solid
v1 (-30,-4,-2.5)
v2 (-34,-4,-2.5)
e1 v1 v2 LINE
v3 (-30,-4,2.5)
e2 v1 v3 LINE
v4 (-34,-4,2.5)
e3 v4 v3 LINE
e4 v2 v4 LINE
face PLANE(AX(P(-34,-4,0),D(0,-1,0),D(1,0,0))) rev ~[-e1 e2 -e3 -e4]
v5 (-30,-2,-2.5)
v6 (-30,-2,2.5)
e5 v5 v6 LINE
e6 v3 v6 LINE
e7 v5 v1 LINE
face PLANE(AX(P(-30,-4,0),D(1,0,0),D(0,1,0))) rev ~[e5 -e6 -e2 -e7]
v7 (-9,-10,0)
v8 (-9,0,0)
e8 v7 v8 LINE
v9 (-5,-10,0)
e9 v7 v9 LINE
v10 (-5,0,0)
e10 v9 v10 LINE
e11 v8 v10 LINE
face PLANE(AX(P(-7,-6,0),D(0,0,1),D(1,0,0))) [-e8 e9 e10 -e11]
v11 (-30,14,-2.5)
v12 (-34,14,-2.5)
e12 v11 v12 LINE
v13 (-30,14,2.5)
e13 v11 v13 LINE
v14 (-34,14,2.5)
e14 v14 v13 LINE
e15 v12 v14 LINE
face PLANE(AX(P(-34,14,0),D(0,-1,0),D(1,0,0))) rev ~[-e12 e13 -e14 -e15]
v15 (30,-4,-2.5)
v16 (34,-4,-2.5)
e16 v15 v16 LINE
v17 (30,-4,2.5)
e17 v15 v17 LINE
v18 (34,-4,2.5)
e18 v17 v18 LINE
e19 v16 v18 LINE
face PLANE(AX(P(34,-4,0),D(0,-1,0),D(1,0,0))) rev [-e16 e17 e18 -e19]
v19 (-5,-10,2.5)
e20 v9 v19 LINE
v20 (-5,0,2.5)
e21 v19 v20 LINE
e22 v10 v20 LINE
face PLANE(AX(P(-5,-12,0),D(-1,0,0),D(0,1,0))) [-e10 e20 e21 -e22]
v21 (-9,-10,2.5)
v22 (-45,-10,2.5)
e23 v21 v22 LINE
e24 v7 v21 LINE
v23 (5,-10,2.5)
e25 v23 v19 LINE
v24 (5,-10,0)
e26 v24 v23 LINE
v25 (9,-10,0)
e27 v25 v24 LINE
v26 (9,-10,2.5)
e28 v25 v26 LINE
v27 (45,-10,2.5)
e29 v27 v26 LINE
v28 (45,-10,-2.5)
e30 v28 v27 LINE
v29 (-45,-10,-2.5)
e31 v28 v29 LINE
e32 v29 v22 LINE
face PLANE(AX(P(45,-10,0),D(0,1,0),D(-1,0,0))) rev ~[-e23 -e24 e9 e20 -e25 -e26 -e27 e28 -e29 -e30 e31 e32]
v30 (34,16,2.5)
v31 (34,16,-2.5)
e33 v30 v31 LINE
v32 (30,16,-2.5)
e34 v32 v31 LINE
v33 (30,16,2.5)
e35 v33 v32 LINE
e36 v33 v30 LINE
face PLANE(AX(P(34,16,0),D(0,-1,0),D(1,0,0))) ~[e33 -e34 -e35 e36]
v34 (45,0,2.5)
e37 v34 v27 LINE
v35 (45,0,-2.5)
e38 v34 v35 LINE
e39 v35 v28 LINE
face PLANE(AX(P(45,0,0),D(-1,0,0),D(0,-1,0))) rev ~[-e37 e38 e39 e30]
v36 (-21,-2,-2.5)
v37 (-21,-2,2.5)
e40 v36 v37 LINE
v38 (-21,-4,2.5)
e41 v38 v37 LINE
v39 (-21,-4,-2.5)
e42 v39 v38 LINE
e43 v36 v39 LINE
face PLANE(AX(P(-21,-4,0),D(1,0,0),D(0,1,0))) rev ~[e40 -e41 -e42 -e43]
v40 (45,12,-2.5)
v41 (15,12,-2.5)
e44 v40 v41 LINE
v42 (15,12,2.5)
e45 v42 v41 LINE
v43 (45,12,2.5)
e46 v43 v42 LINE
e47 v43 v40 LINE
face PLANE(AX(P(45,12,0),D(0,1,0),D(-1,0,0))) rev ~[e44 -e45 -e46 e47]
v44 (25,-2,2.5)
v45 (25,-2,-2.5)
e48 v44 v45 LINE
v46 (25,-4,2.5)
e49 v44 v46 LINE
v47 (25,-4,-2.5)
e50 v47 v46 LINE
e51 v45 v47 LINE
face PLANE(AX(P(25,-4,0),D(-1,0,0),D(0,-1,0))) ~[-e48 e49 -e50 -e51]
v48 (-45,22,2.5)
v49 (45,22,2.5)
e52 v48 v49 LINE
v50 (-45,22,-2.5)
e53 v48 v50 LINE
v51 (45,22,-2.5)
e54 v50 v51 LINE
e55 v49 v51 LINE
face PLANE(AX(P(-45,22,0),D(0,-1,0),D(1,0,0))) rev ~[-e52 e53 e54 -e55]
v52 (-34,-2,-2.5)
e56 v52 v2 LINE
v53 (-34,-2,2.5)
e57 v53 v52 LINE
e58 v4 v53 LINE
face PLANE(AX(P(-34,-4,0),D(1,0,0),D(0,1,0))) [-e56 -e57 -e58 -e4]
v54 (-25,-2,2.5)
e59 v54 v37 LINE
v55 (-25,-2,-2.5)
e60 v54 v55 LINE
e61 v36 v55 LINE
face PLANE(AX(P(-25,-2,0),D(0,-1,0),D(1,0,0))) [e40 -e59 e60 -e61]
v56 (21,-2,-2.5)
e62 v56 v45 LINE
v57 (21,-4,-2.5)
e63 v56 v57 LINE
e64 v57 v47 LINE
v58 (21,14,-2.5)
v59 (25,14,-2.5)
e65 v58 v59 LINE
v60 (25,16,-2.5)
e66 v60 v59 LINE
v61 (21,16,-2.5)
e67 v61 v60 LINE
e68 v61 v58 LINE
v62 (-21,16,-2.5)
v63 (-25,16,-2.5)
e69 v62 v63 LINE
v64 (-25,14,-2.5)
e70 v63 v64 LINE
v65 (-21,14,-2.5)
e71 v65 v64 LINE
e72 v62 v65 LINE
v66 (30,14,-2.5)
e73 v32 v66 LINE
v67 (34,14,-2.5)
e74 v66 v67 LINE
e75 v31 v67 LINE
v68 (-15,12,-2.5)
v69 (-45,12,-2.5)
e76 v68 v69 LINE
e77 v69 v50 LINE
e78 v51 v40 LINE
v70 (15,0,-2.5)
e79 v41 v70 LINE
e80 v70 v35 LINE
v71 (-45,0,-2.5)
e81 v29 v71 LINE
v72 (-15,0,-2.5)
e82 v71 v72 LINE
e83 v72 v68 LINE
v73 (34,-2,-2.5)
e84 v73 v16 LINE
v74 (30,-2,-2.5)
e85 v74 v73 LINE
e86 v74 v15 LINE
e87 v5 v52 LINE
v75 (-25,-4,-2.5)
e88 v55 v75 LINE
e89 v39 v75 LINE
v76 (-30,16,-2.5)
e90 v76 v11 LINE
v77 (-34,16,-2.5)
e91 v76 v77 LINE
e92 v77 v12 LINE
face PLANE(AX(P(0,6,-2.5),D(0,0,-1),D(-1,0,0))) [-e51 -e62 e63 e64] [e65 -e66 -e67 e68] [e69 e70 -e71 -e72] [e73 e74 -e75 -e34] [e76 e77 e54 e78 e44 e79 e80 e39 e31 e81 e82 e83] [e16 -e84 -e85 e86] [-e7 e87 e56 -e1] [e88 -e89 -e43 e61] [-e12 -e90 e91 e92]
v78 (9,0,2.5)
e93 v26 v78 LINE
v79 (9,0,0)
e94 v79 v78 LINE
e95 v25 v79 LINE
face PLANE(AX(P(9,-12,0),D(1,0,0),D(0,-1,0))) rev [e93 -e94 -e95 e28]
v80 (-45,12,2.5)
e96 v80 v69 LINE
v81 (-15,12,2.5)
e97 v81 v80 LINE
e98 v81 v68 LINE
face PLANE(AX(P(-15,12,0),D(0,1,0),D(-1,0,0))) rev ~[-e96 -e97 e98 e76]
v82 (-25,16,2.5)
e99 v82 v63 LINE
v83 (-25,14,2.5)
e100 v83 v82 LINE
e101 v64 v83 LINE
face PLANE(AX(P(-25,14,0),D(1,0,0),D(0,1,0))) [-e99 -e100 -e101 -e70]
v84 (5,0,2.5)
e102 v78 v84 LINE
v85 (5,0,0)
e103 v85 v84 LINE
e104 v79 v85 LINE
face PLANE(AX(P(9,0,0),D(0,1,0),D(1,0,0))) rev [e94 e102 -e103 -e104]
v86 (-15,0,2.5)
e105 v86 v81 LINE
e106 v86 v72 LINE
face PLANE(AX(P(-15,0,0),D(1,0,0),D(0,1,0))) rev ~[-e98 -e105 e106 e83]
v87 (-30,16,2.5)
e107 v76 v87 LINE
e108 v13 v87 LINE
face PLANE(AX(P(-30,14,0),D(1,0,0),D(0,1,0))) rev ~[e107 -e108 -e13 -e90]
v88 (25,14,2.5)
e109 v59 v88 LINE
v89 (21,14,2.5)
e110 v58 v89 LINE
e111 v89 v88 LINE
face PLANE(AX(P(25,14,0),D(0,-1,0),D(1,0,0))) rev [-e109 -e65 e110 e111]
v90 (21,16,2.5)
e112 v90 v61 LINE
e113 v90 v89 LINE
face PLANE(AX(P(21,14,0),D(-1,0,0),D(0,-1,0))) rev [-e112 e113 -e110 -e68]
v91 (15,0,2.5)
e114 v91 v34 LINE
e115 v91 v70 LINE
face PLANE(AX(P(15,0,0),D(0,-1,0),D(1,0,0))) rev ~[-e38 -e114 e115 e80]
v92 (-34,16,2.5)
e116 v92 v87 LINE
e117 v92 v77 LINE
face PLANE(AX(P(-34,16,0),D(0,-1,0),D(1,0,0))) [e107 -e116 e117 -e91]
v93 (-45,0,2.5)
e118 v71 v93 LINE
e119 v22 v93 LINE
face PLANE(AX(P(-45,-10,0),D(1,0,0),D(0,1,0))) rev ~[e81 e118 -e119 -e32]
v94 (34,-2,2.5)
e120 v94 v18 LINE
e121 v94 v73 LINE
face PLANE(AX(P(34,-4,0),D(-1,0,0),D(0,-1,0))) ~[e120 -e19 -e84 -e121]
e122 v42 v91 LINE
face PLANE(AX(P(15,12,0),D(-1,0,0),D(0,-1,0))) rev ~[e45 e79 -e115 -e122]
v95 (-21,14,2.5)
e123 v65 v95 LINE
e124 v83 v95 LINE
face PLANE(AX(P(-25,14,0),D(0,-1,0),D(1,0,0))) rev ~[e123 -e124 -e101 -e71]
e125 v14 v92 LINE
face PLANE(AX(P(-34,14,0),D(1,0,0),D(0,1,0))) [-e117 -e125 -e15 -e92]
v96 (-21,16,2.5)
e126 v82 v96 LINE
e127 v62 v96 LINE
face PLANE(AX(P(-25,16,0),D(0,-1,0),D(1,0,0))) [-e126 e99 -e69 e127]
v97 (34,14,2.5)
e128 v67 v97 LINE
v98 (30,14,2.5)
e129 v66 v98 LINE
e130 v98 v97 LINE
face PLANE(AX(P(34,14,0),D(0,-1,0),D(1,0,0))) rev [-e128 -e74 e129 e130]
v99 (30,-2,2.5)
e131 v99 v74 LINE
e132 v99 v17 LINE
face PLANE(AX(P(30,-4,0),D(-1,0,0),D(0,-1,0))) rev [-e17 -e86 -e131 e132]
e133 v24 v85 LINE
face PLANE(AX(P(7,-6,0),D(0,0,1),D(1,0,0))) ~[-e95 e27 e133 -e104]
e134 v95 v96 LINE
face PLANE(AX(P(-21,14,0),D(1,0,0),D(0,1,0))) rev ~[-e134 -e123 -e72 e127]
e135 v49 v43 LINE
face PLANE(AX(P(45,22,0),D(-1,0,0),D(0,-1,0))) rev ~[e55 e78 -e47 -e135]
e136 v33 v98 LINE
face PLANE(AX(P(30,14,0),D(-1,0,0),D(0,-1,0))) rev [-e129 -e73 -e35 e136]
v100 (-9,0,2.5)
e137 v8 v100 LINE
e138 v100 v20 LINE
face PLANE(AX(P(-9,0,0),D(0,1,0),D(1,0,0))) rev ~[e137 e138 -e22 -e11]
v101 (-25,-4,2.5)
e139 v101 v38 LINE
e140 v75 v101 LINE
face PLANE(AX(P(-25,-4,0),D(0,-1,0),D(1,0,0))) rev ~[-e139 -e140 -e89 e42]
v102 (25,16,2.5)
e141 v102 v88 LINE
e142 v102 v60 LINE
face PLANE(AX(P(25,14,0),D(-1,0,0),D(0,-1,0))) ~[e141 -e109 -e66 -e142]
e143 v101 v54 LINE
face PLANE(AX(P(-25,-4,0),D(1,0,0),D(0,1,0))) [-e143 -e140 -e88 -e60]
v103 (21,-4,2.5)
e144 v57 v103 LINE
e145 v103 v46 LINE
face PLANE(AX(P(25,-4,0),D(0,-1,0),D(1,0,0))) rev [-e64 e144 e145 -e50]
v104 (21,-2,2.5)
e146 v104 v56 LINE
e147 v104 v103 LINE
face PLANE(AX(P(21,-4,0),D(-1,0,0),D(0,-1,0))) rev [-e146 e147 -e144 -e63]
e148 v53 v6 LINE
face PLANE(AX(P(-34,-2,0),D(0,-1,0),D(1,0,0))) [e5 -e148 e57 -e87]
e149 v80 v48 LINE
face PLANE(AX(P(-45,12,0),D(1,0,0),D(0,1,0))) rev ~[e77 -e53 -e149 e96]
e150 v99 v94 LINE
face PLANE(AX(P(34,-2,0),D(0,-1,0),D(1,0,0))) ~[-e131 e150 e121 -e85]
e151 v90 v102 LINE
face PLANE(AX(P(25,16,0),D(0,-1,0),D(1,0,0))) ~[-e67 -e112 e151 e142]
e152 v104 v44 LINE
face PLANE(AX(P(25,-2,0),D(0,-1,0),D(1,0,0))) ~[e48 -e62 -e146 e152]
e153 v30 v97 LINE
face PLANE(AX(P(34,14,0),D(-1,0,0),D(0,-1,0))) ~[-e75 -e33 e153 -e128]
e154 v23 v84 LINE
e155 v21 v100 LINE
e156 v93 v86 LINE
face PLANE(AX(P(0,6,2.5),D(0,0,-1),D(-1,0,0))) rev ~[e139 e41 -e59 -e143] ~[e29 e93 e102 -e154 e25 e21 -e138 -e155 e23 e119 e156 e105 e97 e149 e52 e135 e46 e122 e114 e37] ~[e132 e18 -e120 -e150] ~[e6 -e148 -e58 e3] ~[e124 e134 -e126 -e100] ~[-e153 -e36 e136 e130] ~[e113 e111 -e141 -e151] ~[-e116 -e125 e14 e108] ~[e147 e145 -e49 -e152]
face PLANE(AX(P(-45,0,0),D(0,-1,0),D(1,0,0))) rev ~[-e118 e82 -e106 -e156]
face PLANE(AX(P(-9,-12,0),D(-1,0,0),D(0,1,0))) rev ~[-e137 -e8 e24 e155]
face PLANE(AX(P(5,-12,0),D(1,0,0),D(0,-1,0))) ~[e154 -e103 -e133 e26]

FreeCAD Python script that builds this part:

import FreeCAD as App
import Part
import Sketcher
from FreeCAD import Vector

doc = App.newDocument("Part")
body = doc.addObject("PartDesign::Body", "Body")

sketch1 = doc.addObject("Sketcher::SketchObject", "Sketch")
body.addObject(sketch1)
sketch1.AttachmentSupport = (doc.XY_Plane, [""])
sketch1.MapMode = "FlatFace"
sketch1.addGeometry([
    Part.LineSegment(Vector(-15, 0, 0), Vector(-45, 0, 0)),
    Part.LineSegment(Vector(-45, 0, 0), Vector(-45, -10, 0)),
    Part.LineSegment(Vector(-45, -10, 0), Vector(45, -10, 0)),
    Part.LineSegment(Vector(45, -10, 0), Vector(45, 0, 0)),
    Part.LineSegment(Vector(45, 0, 0), Vector(15, 0, 0)),
    Part.LineSegment(Vector(15, 0, 0), Vector(15, 12, 0)),
    Part.LineSegment(Vector(15, 12, 0), Vector(45, 12, 0)),
    Part.LineSegment(Vector(45, 12, 0), Vector(45, 22, 0)),
    Part.LineSegment(Vector(45, 22, 0), Vector(-45, 22, 0)),
    Part.LineSegment(Vector(-45, 22, 0), Vector(-45, 12, 0)),
    Part.LineSegment(Vector(-45, 12, 0), Vector(-15, 12, 0)),
    Part.LineSegment(Vector(-15, 12, 0), Vector(-15, 0, 0)),
], False)
sketch1.addConstraint([
    Sketcher.Constraint("Coincident", 0, 2, 1, 1),
    Sketcher.Constraint("Coincident", 1, 2, 2, 1),
    Sketcher.Constraint("Coincident", 2, 2, 3, 1),
    Sketcher.Constraint("Coincident", 3, 2, 4, 1),
    Sketcher.Constraint("Coincident", 4, 2, 5, 1),
    Sketcher.Constraint("Coincident", 5, 2, 6, 1),
    Sketcher.Constraint("Coincident", 6, 2, 7, 1),
    Sketcher.Constraint("Coincident", 7, 2, 8, 1),
    Sketcher.Constraint("Coincident", 8, 2, 9, 1),
    Sketcher.Constraint("Coincident", 9, 2, 10, 1),
    Sketcher.Constraint("Coincident", 10, 2, 11, 1),
    Sketcher.Constraint("Coincident", 11, 2, 0, 1),
    Sketcher.Constraint("Horizontal", 0),
    Sketcher.Constraint("Vertical", 1),
    Sketcher.Constraint("Horizontal", 2),
    Sketcher.Constraint("Vertical", 3),
    Sketcher.Constraint("Horizontal", 4),
    Sketcher.Constraint("Vertical", 5),
    Sketcher.Constraint("Horizontal", 6),
    Sketcher.Constraint("Vertical", 7),
    Sketcher.Constraint("Horizontal", 8),
    Sketcher.Constraint("Vertical", 9),
    Sketcher.Constraint("Horizontal", 10),
    Sketcher.Constraint("Vertical", 11),
    Sketcher.Constraint("Symmetric", 0, 2, 3, 2, -1, 1),
    Sketcher.Constraint("Symmetric", 6, 2, 9, 2, -2),
    Sketcher.Constraint("Symmetric", 4, 2, 11, 2, -2),
    Sketcher.Constraint("Vertical", 3, 2, 6, 2),
    Sketcher.Constraint("Equal", 3, 7),
    Sketcher.Constraint("DistanceX", 0, 2, 0, 1, 30.0),
    Sketcher.Constraint("DistanceX", 2, 1, 2, 2, 90.0),
    Sketcher.Constraint("DistanceY", 1, 2, 1, 1, 10.0),
    Sketcher.Constraint("DistanceY", 5, 1, 5, 2, 12.0),
])
pad1 = doc.addObject("PartDesign::Pad", "Pad")
body.addObject(pad1)
pad1.Profile = sketch1
pad1.Length = 5
pad1.Midplane = True

sketch2 = doc.addObject("Sketcher::SketchObject", "Sketch001")
body.addObject(sketch2)
sketch2.AttachmentSupport = (doc.XY_Plane, [""])
sketch2.MapMode = "FlatFace"
sketch2.addGeometry([
    Part.LineSegment(Vector(-34, -2, 0), Vector(-34, -4, 0)),
    Part.LineSegment(Vector(-34, -4, 0), Vector(-30, -4, 0)),
    Part.LineSegment(Vector(-30, -4, 0), Vector(-30, -2, 0)),
    Part.LineSegment(Vector(-30, -2, 0), Vector(-34, -2, 0)),
    Part.LineSegment(Vector(-34, 16, 0), Vector(-34, 14, 0)),
    Part.LineSegment(Vector(-34, 14, 0), Vector(-30, 14, 0)),
    Part.LineSegment(Vector(-30, 14, 0), Vector(-30, 16, 0)),
    Part.LineSegment(Vector(-30, 16, 0), Vector(-34, 16, 0)),
    Part.LineSegment(Vector(-25, -2, 0), Vector(-25, -4, 0)),
    Part.LineSegment(Vector(-25, -4, 0), Vector(-21, -4, 0)),
    Part.LineSegment(Vector(-21, -4, 0), Vector(-21, -2, 0)),
    Part.LineSegment(Vector(-21, -2, 0), Vector(-25, -2, 0)),
    Part.LineSegment(Vector(-25, 16, 0), Vector(-25, 14, 0)),
    Part.LineSegment(Vector(-25, 14, 0), Vector(-21, 14, 0)),
    Part.LineSegment(Vector(-21, 14, 0), Vector(-21, 16, 0)),
    Part.LineSegment(Vector(-21, 16, 0), Vector(-25, 16, 0)),
], False)
sketch2.addConstraint([
    Sketcher.Constraint("Coincident", 0, 2, 1, 1),
    Sketcher.Constraint("Coincident", 1, 2, 2, 1),
    Sketcher.Constraint("Coincident", 2, 2, 3, 1),
    Sketcher.Constraint("Coincident", 3, 2, 0, 1),
    Sketcher.Constraint("Coincident", 4, 2, 5, 1),
    Sketcher.Constraint("Coincident", 5, 2, 6, 1),
    Sketcher.Constraint("Coincident", 6, 2, 7, 1),
    Sketcher.Constraint("Coincident", 7, 2, 4, 1),
    Sketcher.Constraint("Coincident", 8, 2, 9, 1),
    Sketcher.Constraint("Coincident", 9, 2, 10, 1),
    Sketcher.Constraint("Coincident", 10, 2, 11, 1),
    Sketcher.Constraint("Coincident", 11, 2, 8, 1),
    Sketcher.Constraint("Coincident", 12, 2, 13, 1),
    Sketcher.Constraint("Coincident", 13, 2, 14, 1),
    Sketcher.Constraint("Coincident", 14, 2, 15, 1),
    Sketcher.Constraint("Coincident", 15, 2, 12, 1),
    Sketcher.Constraint("Vertical", 0),
    Sketcher.Constraint("Horizontal", 1),
    Sketcher.Constraint("Vertical", 2),
    Sketcher.Constraint("Horizontal", 3),
    Sketcher.Constraint("Vertical", 4),
    Sketcher.Constraint("Horizontal", 5),
    Sketcher.Constraint("Vertical", 6),
    Sketcher.Constraint("Horizontal", 7),
    Sketcher.Constraint("Vertical", 8),
    Sketcher.Constraint("Horizontal", 9),
    Sketcher.Constraint("Vertical", 10),
    Sketcher.Constraint("Horizontal", 11),
    Sketcher.Constraint("Vertical", 12),
    Sketcher.Constraint("Horizontal", 13),
    Sketcher.Constraint("Vertical", 14),
    Sketcher.Constraint("Horizontal", 15),
    Sketcher.Constraint("Horizontal", 1, 2, 8, 2),
    Sketcher.Constraint("Horizontal", 3, 2, 10, 2),
    Sketcher.Constraint("Horizontal", 5, 2, 12, 2),
    Sketcher.Constraint("Horizontal", 7, 2, 14, 2),
    Sketcher.Constraint("Vertical", 3, 2, 4, 2),
    Sketcher.Constraint("Vertical", 2, 2, 5, 2),
    Sketcher.Constraint("Vertical", 11, 2, 12, 2),
    Sketcher.Constraint("Vertical", 10, 2, 13, 2),
    Sketcher.Constraint("Equal", 7, 9),
    Sketcher.Constraint("Equal", 2, 4),
    Sketcher.Constraint("DistanceX", 1, 1, 1, 2, 4.0),
    Sketcher.Constraint("DistanceY", 0, 2, 0, 1, 2.0),
    Sketcher.Constraint("DistanceX", 0, 2, -1, 1, 34.0),
    Sketcher.Constraint("DistanceY", 0, 2, -1, 1, 4.0),
    Sketcher.Constraint("DistanceY", -1, 1, 4, 2, 14.0),
    Sketcher.Constraint("DistanceX", 8, 2, -1, 1, 25.0),
])
pocket1 = doc.addObject("PartDesign::Pocket", "Pocket")
body.addObject(pocket1)
pocket1.Profile = sketch2
pocket1.Type = "ThroughAll"
pocket1.Midplane = True
doc.recompute()

mirrored = doc.addObject("PartDesign::Mirrored", "Mirrored")
body.addObject(mirrored)
mirrored.Originals = [pocket1]
mirrored.MirrorPlane = (doc.YZ_Plane, [""])
body.Tip = mirrored

sketch3 = doc.addObject("Sketcher::SketchObject", "Sketch002")
body.addObject(sketch3)
sketch3.AttachmentSupport = (doc.XY_Plane, [""])
sketch3.MapMode = "FlatFace"
sketch3.addGeometry([
    Part.LineSegment(Vector(-9, 0, 0), Vector(-9, -12, 0)),
    Part.LineSegment(Vector(-9, -12, 0), Vector(-5, -12, 0)),
    Part.LineSegment(Vector(-5, -12, 0), Vector(-5, 0, 0)),
    Part.LineSegment(Vector(-5, 0, 0), Vector(-9, 0, 0)),
], False)
sketch3.addConstraint([
    Sketcher.Constraint("Coincident", 0, 2, 1, 1),
    Sketcher.Constraint("Coincident", 1, 2, 2, 1),
    Sketcher.Constraint("Coincident", 2, 2, 3, 1),
    Sketcher.Constraint("Coincident", 3, 2, 0, 1),
    Sketcher.Constraint("Vertical", 0),
    Sketcher.Constraint("Horizontal", 1),
    Sketcher.Constraint("Vertical", 2),
    Sketcher.Constraint("Horizontal", 3),
    Sketcher.Constraint("PointOnObject", 2, 2, -1),
    Sketcher.Constraint("DistanceX", 1, 1, 1, 2, 4.0),
    Sketcher.Constraint("DistanceY", 0, 2, 0, 1, 12.0),
    Sketcher.Constraint("DistanceX", 0, 2, -1, 1, 9.0),
])
pocket2 = doc.addObject("PartDesign::Pocket", "Pocket001")
body.addObject(pocket2)
pocket2.Profile = sketch3
pocket2.Type = "ThroughAll"
pocket2.Reversed = True
doc.recompute()

mirrored2 = doc.addObject("PartDesign::Mirrored", "Mirrored001")
body.addObject(mirrored2)
mirrored2.Originals = [pocket2]
mirrored2.MirrorPlane = (doc.YZ_Plane, [""])
body.Tip = mirrored2

doc.recompute()
